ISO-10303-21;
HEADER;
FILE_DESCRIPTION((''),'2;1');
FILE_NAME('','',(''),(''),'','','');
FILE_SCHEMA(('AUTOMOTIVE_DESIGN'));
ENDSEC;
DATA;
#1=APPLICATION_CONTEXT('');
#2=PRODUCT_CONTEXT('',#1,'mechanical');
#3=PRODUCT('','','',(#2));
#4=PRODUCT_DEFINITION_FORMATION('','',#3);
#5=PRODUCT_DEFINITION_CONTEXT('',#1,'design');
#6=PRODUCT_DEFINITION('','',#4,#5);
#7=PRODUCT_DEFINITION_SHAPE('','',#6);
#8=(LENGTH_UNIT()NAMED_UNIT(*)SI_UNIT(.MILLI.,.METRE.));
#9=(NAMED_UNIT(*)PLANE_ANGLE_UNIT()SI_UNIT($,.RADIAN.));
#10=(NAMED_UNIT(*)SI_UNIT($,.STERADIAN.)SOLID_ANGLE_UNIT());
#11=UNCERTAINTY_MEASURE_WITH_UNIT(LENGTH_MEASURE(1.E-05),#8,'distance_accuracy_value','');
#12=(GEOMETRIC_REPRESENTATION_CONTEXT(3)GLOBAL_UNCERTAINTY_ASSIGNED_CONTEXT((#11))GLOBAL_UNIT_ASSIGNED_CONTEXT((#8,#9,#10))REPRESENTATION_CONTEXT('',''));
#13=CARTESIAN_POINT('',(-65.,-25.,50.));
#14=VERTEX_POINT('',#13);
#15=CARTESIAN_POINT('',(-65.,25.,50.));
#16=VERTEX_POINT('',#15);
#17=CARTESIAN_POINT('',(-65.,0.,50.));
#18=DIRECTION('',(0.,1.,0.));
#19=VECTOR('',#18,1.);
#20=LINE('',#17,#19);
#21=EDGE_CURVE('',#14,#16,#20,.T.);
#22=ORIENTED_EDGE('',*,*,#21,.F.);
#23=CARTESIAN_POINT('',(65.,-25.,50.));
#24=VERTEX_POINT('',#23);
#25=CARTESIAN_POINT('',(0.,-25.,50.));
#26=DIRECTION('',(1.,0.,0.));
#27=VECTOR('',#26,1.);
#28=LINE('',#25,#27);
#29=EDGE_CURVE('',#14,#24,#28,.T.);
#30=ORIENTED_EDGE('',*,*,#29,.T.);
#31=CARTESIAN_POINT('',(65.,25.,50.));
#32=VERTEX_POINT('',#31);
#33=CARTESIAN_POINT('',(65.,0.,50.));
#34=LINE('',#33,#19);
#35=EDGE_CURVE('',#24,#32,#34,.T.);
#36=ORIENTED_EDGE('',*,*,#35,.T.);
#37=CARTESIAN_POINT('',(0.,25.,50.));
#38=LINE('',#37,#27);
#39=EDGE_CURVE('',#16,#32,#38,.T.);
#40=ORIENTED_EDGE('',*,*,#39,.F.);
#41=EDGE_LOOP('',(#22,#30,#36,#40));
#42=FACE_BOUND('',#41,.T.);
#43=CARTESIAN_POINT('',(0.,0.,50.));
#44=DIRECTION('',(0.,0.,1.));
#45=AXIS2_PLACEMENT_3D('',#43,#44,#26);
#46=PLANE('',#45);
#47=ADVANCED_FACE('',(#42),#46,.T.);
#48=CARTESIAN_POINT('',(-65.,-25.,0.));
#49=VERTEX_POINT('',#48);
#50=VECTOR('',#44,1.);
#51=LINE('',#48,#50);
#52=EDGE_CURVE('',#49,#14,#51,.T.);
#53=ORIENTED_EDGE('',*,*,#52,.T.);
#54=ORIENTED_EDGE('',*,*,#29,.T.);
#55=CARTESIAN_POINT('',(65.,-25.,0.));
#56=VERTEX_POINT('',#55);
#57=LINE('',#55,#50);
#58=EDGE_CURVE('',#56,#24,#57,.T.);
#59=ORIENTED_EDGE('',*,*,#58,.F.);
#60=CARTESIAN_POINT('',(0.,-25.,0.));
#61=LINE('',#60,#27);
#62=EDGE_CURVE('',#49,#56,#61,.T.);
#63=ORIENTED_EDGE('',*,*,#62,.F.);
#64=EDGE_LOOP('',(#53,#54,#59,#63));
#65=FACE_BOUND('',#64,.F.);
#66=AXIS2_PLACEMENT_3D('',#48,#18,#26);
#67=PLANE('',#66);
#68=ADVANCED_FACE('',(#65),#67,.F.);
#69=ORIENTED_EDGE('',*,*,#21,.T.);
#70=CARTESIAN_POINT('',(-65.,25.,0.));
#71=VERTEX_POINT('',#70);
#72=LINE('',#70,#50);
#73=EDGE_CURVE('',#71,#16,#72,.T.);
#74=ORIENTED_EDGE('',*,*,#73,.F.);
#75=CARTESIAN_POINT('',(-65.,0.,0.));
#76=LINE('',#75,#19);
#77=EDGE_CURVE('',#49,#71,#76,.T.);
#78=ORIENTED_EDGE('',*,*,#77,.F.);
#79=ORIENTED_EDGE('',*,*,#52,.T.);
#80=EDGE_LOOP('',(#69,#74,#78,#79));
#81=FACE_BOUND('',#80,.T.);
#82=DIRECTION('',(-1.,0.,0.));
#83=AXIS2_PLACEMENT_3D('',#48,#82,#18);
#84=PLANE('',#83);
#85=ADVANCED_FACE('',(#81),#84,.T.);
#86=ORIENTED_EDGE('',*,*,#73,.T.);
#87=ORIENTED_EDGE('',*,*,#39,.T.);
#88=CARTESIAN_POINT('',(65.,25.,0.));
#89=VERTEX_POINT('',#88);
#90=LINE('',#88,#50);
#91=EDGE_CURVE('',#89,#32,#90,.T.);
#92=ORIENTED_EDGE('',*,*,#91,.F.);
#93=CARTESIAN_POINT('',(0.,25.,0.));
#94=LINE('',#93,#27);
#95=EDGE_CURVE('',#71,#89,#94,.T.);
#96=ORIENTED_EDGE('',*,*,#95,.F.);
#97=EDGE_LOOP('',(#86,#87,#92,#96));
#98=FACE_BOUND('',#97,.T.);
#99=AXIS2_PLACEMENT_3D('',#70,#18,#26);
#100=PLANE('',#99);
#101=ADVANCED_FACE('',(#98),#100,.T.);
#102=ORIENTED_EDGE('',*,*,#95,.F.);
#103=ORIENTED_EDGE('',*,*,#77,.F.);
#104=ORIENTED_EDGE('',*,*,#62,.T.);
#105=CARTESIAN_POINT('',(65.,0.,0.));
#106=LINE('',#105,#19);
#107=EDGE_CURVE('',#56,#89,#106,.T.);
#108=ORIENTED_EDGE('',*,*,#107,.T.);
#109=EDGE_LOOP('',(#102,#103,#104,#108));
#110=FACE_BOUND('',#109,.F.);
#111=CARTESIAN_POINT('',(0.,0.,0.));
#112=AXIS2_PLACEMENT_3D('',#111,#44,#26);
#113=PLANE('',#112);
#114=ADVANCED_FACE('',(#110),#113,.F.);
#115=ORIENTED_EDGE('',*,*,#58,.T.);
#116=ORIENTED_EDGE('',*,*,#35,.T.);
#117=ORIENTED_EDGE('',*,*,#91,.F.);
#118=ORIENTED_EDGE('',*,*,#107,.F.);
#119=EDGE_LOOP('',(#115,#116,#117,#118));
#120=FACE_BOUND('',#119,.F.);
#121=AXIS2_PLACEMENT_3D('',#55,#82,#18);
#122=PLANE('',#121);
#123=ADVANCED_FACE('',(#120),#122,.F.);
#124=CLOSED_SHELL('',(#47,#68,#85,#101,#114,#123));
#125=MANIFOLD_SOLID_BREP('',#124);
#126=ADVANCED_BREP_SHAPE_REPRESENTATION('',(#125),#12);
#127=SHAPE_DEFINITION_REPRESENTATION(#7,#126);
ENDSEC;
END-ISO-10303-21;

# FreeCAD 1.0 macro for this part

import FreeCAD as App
import Part
import Sketcher
from FreeCAD import Vector
Q = App.Units.Quantity

doc = App.newDocument("Part")
params = doc.addObject("Spreadsheet::Sheet", "Params")
for row, (alias, value) in enumerate([
    ("sketch1_width", "130 mm"),
    ("sketch1_height", "50 mm"),
    ("pad1_length", "50 mm"),
], start=1):
    params.set(f"A{row}", alias)
    params.set(f"B{row}", "=" + value)
    params.setAlias(f"B{row}", alias)

body = doc.addObject("PartDesign::Body", "Body")

sketch1 = doc.addObject("Sketcher::SketchObject", "Sketch")
body.addObject(sketch1)
sketch1.AttachmentSupport = (doc.XY_Plane, [""])
sketch1.MapMode = "FlatFace"
sketch1.addGeometry([
    Part.LineSegment(Vector(-65, 25, 0), Vector(-65, -25, 0)),
    Part.LineSegment(Vector(-65, -25, 0), Vector(65, -25, 0)),
    Part.LineSegment(Vector(65, -25, 0), Vector(65, 25, 0)),
    Part.LineSegment(Vector(65, 25, 0), Vector(-65, 25, 0)),
], False)
sketch1.addConstraint([
    Sketcher.Constraint("Coincident", 0, 2, 1, 1),
    Sketcher.Constraint("Coincident", 1, 2, 2, 1),
    Sketcher.Constraint("Coincident", 2, 2, 3, 1),
    Sketcher.Constraint("Coincident", 3, 2, 0, 1),
    Sketcher.Constraint("Vertical", 0),
    Sketcher.Constraint("Horizontal", 1),
    Sketcher.Constraint("Vertical", 2),
    Sketcher.Constraint("Horizontal", 3),
    Sketcher.Constraint("Symmetric", 0, 2, 2, 2, -1, 1),
    Sketcher.Constraint("DistanceX", 1, 1, 1, 2, Q("130 mm")),
    Sketcher.Constraint("DistanceY", 0, 2, 0, 1, Q("50 mm")),
])
sketch1.setExpression("Constraints[9]", "Params.sketch1_width")
sketch1.setExpression("Constraints[10]", "Params.sketch1_height")
pad1 = doc.addObject("PartDesign::Pad", "Pad")
body.addObject(pad1)
pad1.Profile = sketch1
pad1.setExpression("Length", "Params.pad1_length")

doc.recompute()
